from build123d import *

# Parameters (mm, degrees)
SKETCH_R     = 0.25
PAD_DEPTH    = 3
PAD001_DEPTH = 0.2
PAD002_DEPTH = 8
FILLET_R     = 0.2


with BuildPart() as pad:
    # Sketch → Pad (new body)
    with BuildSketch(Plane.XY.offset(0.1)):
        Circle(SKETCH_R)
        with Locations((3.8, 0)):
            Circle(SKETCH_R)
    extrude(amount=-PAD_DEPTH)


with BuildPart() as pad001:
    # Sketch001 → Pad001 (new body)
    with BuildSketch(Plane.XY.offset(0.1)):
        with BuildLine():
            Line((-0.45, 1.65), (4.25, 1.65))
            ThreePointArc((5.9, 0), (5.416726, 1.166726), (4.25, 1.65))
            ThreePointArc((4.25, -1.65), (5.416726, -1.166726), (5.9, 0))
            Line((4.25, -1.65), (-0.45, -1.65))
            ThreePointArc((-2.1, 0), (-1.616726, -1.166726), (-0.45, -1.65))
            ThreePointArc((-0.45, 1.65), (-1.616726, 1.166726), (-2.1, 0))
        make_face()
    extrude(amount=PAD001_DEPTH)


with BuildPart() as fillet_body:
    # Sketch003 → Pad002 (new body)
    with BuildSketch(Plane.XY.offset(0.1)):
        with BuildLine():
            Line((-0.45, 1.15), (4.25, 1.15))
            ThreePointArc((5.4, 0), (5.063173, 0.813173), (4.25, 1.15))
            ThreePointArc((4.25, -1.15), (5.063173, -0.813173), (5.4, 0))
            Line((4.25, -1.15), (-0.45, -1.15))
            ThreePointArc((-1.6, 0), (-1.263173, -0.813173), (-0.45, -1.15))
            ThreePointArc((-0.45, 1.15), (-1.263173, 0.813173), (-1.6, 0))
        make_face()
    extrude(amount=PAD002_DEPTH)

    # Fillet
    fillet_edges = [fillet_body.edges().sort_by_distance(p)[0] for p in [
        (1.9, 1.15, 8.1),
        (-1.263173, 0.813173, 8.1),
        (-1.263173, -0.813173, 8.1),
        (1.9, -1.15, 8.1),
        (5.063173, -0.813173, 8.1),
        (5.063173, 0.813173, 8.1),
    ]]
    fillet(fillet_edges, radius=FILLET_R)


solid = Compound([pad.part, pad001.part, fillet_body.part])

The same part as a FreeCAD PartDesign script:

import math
import FreeCAD as App
import Part
import Sketcher
Q = App.Units.Quantity


def edges_at(feature, points):
    """Names of the edges that pass closest to the given points."""
    edges = feature.Shape.Edges
    near = lambda p: min(range(len(edges)), key=lambda i: edges[i].distToShape(Part.Vertex(*p))[0])
    return sorted({f"Edge{near(p) + 1}" for p in points})

doc = App.newDocument("Part")
body = doc.addObject("PartDesign::Body", "Body")
body.AllowCompound = True

sketch1 = doc.addObject("Sketcher::SketchObject", "Sketch")
body.addObject(sketch1)
sketch1.AttachmentSupport = (doc.XY_Plane, [""])
sketch1.MapMode = "FlatFace"
sketch1.AttachmentOffset = App.Placement(App.Vector(0, 0, 0.1), App.Rotation())
sketch1.addGeometry(Part.Circle(App.Vector(0, 0, 0), App.Vector(0, 0, 1), 0.25), False)
sketch1.addGeometry(Part.Circle(App.Vector(3.8, 0, 0), App.Vector(0, 0, 1), 0.25), False)
sketch1.addConstraint(Sketcher.Constraint("Coincident", 0, 3, -1, 1))
sketch1.addConstraint(Sketcher.Constraint("Equal", 0, 1))
sketch1.addConstraint(Sketcher.Constraint("PointOnObject", 1, 3, -1))
sketch1.addConstraint(Sketcher.Constraint("Diameter", 0, Q("0.5 mm")))
sketch1.addConstraint(Sketcher.Constraint("DistanceX", -1, 1, 1, 3, Q("3.8 mm")))
pad1 = doc.addObject("PartDesign::Pad", "Pad")
body.addObject(pad1)
pad1.Profile = sketch1
pad1.Length = 3
pad1.Reversed = True
body2 = doc.addObject("PartDesign::Body", "Body001")

sketch2 = doc.addObject("Sketcher::SketchObject", "Sketch001")
body2.addObject(sketch2)
sketch2.AttachmentSupport = (doc.getObject("XY_Plane001"), [""])
sketch2.MapMode = "FlatFace"
sketch2.AttachmentOffset = App.Placement(App.Vector(0, 0, 0.1), App.Rotation())
sketch2.addGeometry(Part.LineSegment(App.Vector(4.25, 1.65, 0), App.Vector(-0.45, 1.65, 0)), False)
sketch2.addGeometry(Part.ArcOfCircle(Part.Circle(App.Vector(-0.449999, -0.000001, 0), App.Vector(0, 0, 1), 1.650001), math.radians(90.000022), math.radians(179.999978)), False)
sketch2.addGeometry(Part.ArcOfCircle(Part.Circle(App.Vector(-0.449999, 0.000001, 0), App.Vector(0, 0, 1), 1.650001), math.radians(-179.999978), math.radians(-90.000022)), False)
sketch2.addGeometry(Part.LineSegment(App.Vector(-0.45, -1.65, 0), App.Vector(4.25, -1.65, 0)), False)
sketch2.addGeometry(Part.ArcOfCircle(Part.Circle(App.Vector(4.249999, 0.000001, 0), App.Vector(0, 0, 1), 1.650001), math.radians(-89.999978), math.radians(-0.000022)), False)
sketch2.addGeometry(Part.ArcOfCircle(Part.Circle(App.Vector(4.249999, -0.000001, 0), App.Vector(0, 0, 1), 1.650001), math.radians(0.000022), math.radians(89.999978)), False)
sketch2.addConstraint(Sketcher.Constraint("Tangent", 0, 2, 1, 1))
sketch2.addConstraint(Sketcher.Constraint("Tangent", 1, 2, 2, 1))
sketch2.addConstraint(Sketcher.Constraint("Tangent", 2, 2, 3, 1))
sketch2.addConstraint(Sketcher.Constraint("Tangent", 3, 2, 4, 1))
sketch2.addConstraint(Sketcher.Constraint("Tangent", 4, 2, 5, 1))
sketch2.addConstraint(Sketcher.Constraint("Tangent", 5, 2, 0, 1))
sketch2.addConstraint(Sketcher.Constraint("Horizontal", 0))
sketch2.addConstraint(Sketcher.Constraint("Horizontal", 3))
sketch2.addConstraint(Sketcher.Constraint("Equal", 1, 2))
sketch2.addConstraint(Sketcher.Constraint("Equal", 2, 4))
sketch2.addConstraint(Sketcher.Constraint("PointOnObject", 1, 3, -1))
sketch2.addConstraint(Sketcher.Constraint("PointOnObject", 1, 2, -1))
sketch2.addConstraint(Sketcher.Constraint("PointOnObject", 4, 2, -1))
sketch2.addConstraint(Sketcher.Constraint("Radius", 1, Q("1.650001 mm")))
sketch2.addConstraint(Sketcher.Constraint("DistanceX", 0, 2, 0, 1, Q("4.7 mm")))
sketch2.addConstraint(Sketcher.Constraint("DistanceX", 1, 2, -1, 1, Q("2.1 mm")))
pad2 = doc.addObject("PartDesign::Pad", "Pad001")
body2.addObject(pad2)
pad2.Profile = sketch2
pad2.Length = 0.2
body3 = doc.addObject("PartDesign::Body", "Body002")

sketch3 = doc.addObject("Sketcher::SketchObject", "Sketch002")
body3.addObject(sketch3)
sketch3.AttachmentSupport = (doc.getObject("XY_Plane002"), [""])
sketch3.MapMode = "FlatFace"
sketch3.AttachmentOffset = App.Placement(App.Vector(0, 0, 0.1), App.Rotation())
sketch3.addGeometry(Part.LineSegment(App.Vector(4.25, 1.15, 0), App.Vector(-0.45, 1.15, 0)), False)
sketch3.addGeometry(Part.ArcOfCircle(Part.Circle(App.Vector(-0.450001, 0.000001, 0), App.Vector(0, 0, 1), 1.149999), math.radians(89.999966), math.radians(180.000034)), False)
sketch3.addGeometry(Part.ArcOfCircle(Part.Circle(App.Vector(-0.450001, -0.000001, 0), App.Vector(0, 0, 1), 1.149999), math.radians(179.999966), math.radians(270.000034)), False)
sketch3.addGeometry(Part.LineSegment(App.Vector(-0.45, -1.15, 0), App.Vector(4.25, -1.15, 0)), False)
sketch3.addGeometry(Part.ArcOfCircle(Part.Circle(App.Vector(4.250001, -0.000001, 0), App.Vector(0, 0, 1), 1.149999), math.radians(-90.000034), math.radians(0.000034)), False)
sketch3.addGeometry(Part.ArcOfCircle(Part.Circle(App.Vector(4.250001, 0.000001, 0), App.Vector(0, 0, 1), 1.149999), math.radians(-0.000034), math.radians(90.000034)), False)
sketch3.addConstraint(Sketcher.Constraint("Tangent", 0, 2, 1, 1))
sketch3.addConstraint(Sketcher.Constraint("Tangent", 1, 2, 2, 1))
sketch3.addConstraint(Sketcher.Constraint("Tangent", 2, 2, 3, 1))
sketch3.addConstraint(Sketcher.Constraint("Tangent", 3, 2, 4, 1))
sketch3.addConstraint(Sketcher.Constraint("Tangent", 4, 2, 5, 1))
sketch3.addConstraint(Sketcher.Constraint("Tangent", 5, 2, 0, 1))
sketch3.addConstraint(Sketcher.Constraint("Horizontal", 0))
sketch3.addConstraint(Sketcher.Constraint("Horizontal", 3))
sketch3.addConstraint(Sketcher.Constraint("Equal", 1, 2))
sketch3.addConstraint(Sketcher.Constraint("Equal", 2, 4))
sketch3.addConstraint(Sketcher.Constraint("PointOnObject", 1, 3, -1))
sketch3.addConstraint(Sketcher.Constraint("PointOnObject", 1, 2, -1))
sketch3.addConstraint(Sketcher.Constraint("PointOnObject", 4, 2, -1))
sketch3.addConstraint(Sketcher.Constraint("Radius", 1, Q("1.149999 mm")))
sketch3.addConstraint(Sketcher.Constraint("DistanceX", 0, 2, 0, 1, Q("4.7 mm")))
sketch3.addConstraint(Sketcher.Constraint("DistanceX", 1, 2, -1, 1, Q("1.6 mm")))
pad3 = doc.addObject("PartDesign::Pad", "Pad002")
body3.addObject(pad3)
pad3.Profile = sketch3
pad3.Length = 8
doc.recompute()

fillet = doc.addObject("PartDesign::Fillet", "Fillet")
body3.addObject(fillet)
fillet.Base = (pad3, edges_at(pad3, [
    (1.9, 1.15, 8.1),
    (-1.263, 0.813, 8.1),
    (-1.263, -0.813, 8.1),
    (1.9, -1.15, 8.1),
    (5.063, -0.813, 8.1),
    (5.063, 0.813, 8.1),
]))
fillet.Radius = 0.2

doc.recompute()
